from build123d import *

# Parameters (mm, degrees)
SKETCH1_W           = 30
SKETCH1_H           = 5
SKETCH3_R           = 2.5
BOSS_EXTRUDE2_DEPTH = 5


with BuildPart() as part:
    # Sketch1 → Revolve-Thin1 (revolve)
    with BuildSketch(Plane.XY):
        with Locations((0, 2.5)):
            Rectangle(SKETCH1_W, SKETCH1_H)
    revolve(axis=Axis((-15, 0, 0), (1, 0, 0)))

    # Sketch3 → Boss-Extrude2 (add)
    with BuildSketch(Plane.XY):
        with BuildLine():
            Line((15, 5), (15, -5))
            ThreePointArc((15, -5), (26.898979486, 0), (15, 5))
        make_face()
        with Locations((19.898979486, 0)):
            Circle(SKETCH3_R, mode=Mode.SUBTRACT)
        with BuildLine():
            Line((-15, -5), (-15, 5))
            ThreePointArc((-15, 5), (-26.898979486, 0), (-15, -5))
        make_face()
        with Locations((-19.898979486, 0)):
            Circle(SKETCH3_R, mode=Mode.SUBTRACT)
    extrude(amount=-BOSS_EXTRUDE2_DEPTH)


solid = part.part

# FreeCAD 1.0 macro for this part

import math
import FreeCAD as App
import Part
import Sketcher
Q = App.Units.Quantity


def add_polygon(sketch, points):
    """Adds a closed chain of lines whose ends are joined by coincident constraints."""
    first, n = sketch.GeometryCount, len(points)
    for a, b in zip(points, points[1:] + points[:1]):
        sketch.addGeometry(Part.LineSegment(App.Vector(*a, 0), App.Vector(*b, 0)), False)
    for i in range(n):
        sketch.addConstraint(Sketcher.Constraint("Coincident", first + i, 2, first + (i + 1) % n, 1))

doc = App.newDocument("Part")
body = doc.addObject("PartDesign::Body", "Body")

# Sketch on XY plane
sketch1 = body.newObject("Sketcher::SketchObject", "Sketch")
sketch1.AttachmentSupport = (doc.getObject("XY_Plane"), [""])
sketch1.MapMode = "FlatFace"
add_polygon(sketch1, [(-15, 5), (-15, 0), (15, 0), (15, 5)])  # lines 0-3
sketch1.addConstraint([
    Sketcher.Constraint("Vertical", 0),
    Sketcher.Constraint("Horizontal", 1),
    Sketcher.Constraint("Vertical", 2),
    Sketcher.Constraint("Horizontal", 3),
    Sketcher.Constraint("Symmetric", 0, 2, 1, 2, -1, 1),
    Sketcher.Constraint("DistanceX", 1, 1, 1, 2, Q("30 mm")),
    Sketcher.Constraint("DistanceY", 0, 2, 0, 1, Q("5 mm")),
])
revolution = body.newObject("PartDesign::Revolution", "Revolution")
revolution.Profile = sketch1
revolution.ReferenceAxis = (sketch1, ["H_Axis"])
revolution.Angle = 360

# Sketch on XY plane
sketch2 = body.newObject("Sketcher::SketchObject", "Sketch001")
sketch2.AttachmentSupport = (doc.getObject("XY_Plane"), [""])
sketch2.MapMode = "FlatFace"
sketch2.addGeometry([
    Part.LineSegment(App.Vector(15, 5, 0), App.Vector(15, -5, 0)),  # 0
    Part.ArcOfCircle(Part.Circle(App.Vector(19.898979, 0, 0), App.Vector(0, 0, 1), 7), math.radians(-134.415309), math.radians(134.415309)),  # 1
    Part.Circle(App.Vector(19.898979, 0, 0), App.Vector(0, 0, 1), 2.5),  # 2
    Part.LineSegment(App.Vector(-15, -5, 0), App.Vector(-15, 5, 0)),  # 3
    Part.ArcOfCircle(Part.Circle(App.Vector(-19.898979, 0, 0), App.Vector(0, 0, 1), 7), math.radians(45.584691), math.radians(314.415309)),  # 4
    Part.Circle(App.Vector(-19.898979, 0, 0), App.Vector(0, 0, 1), 2.5),  # 5
], False)
sketch2.addConstraint([
    Sketcher.Constraint("Coincident", 0, 1, 1, 2),
    Sketcher.Constraint("Coincident", 1, 1, 0, 2),
    Sketcher.Constraint("Coincident", 3, 1, 4, 2),
    Sketcher.Constraint("Coincident", 4, 1, 3, 2),
    Sketcher.Constraint("Vertical", 0),
    Sketcher.Constraint("Vertical", 3),
    Sketcher.Constraint("Coincident", 2, 3, 1, 3),
    Sketcher.Constraint("Coincident", 5, 3, 4, 3),
    Sketcher.Constraint("Equal", 1, 4),
    Sketcher.Constraint("Equal", 2, 5),
    Sketcher.Constraint("Symmetric", 1, 3, 4, 3, -1, 1),
    Sketcher.Constraint("Symmetric", 1, 1, 3, 1, -2),
    Sketcher.Constraint("Diameter", 2, Q("5 mm")),
    Sketcher.Constraint("Radius", 1, Q("7 mm")),
    Sketcher.Constraint("DistanceY", 0, 2, 0, 1, Q("10 mm")),
    Sketcher.Constraint("DistanceX", -1, 1, 0, 1, Q("15 mm")),
])
pad1 = body.newObject("PartDesign::Pad", "Pad")
pad1.Profile = sketch2
pad1.Length = 5
pad1.Reversed = True

doc.recompute()
